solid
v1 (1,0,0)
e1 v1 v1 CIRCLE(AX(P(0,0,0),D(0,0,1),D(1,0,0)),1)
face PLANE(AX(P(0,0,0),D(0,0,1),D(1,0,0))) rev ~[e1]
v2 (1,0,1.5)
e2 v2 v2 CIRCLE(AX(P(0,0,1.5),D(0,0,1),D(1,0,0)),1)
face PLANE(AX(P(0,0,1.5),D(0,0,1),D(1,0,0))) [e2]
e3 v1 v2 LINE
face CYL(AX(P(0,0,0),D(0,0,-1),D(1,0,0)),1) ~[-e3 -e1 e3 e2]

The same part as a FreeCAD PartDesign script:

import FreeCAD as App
import Part
import Sketcher

V = App.Vector
Q = App.Units.Quantity

doc = App.newDocument("Part")
body = doc.addObject("PartDesign::Body", "Body")

sketch1 = body.newObject("Sketcher::SketchObject", "Sketch")
sketch1.AttachmentSupport = (doc.getObject("XY_Plane"), [""])
sketch1.MapMode = "FlatFace"
sketch1.addGeometry(Part.Circle(V(0, 0, 0), V(0, 0, 1), 1), False)
sketch1.addConstraint(Sketcher.Constraint("Coincident", 0, 3, -1, 1))
sketch1.addConstraint(Sketcher.Constraint("Diameter", 0, Q("2 mm")))
pad1 = body.newObject("PartDesign::Pad", "Pad")
pad1.Profile = sketch1
pad1.Length = 1.5

doc.recompute()
